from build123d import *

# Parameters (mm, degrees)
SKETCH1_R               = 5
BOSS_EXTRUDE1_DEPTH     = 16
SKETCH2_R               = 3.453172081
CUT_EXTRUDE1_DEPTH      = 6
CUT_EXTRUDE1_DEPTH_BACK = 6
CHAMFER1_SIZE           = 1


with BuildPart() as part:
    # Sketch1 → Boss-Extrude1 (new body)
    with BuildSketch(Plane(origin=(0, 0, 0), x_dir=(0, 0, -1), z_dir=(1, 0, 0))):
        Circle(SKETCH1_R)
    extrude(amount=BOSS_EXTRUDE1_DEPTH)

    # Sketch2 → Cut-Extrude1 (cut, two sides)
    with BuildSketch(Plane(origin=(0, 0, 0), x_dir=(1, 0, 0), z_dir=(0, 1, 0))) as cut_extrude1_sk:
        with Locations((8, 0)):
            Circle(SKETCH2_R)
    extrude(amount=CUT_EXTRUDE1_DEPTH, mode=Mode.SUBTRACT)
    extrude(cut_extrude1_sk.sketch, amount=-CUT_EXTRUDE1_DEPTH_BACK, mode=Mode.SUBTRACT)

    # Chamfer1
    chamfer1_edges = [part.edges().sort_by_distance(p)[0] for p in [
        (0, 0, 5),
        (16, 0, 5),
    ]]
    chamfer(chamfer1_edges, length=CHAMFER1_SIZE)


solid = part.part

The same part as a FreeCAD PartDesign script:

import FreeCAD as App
import Part
import Sketcher

V = App.Vector


def edges_at(feature, points):
    """Names of the edges that pass closest to the given points."""
    edges = feature.Shape.Edges
    near = lambda p: min(range(len(edges)), key=lambda i: edges[i].distToShape(Part.Vertex(*p))[0])
    return sorted({f"Edge{near(p) + 1}" for p in points})

doc = App.newDocument("Part")
body = doc.addObject("PartDesign::Body", "Body")

# Sketch on YZ plane
sketch1 = doc.addObject("Sketcher::SketchObject", "Sketch")
body.addObject(sketch1)
sketch1.AttachmentSupport = (doc.YZ_Plane, [""])
sketch1.MapMode = "FlatFace"
sketch1.addGeometry(Part.Circle(V(0, 0, 0), V(0, 0, 1), 5), False)
sketch1.addConstraint([
    Sketcher.Constraint("Coincident", 0, 3, -1, 1),
    Sketcher.Constraint("Diameter", 0, 10.0),
])
pad1 = doc.addObject("PartDesign::Pad", "Pad")
body.addObject(pad1)
pad1.Profile = sketch1
pad1.Length = 16

# Sketch on XZ plane
sketch2 = doc.addObject("Sketcher::SketchObject", "Sketch001")
body.addObject(sketch2)
sketch2.AttachmentSupport = (doc.XZ_Plane, [""])
sketch2.MapMode = "FlatFace"
sketch2.addGeometry(Part.Circle(V(8, 0, 0), V(0, 0, 1), 3.453172), False)
sketch2.addConstraint([
    Sketcher.Constraint("PointOnObject", 0, 3, -1),
    Sketcher.Constraint("DistanceX", -1, 1, 0, 3, 8.0),
    Sketcher.Constraint("Diameter", 0, 6.906344),
])
pocket1 = doc.addObject("PartDesign::Pocket", "Pocket")
body.addObject(pocket1)
pocket1.Profile = sketch2
pocket1.Type = "ThroughAll"
pocket1.Midplane = True
doc.recompute()

chamfer = doc.addObject("PartDesign::Chamfer", "Chamfer")
body.addObject(chamfer)
chamfer.Base = (pocket1, edges_at(pocket1, [(0, 0, 5), (16, 0, 5)]))
chamfer.Size = 1

doc.recompute()
